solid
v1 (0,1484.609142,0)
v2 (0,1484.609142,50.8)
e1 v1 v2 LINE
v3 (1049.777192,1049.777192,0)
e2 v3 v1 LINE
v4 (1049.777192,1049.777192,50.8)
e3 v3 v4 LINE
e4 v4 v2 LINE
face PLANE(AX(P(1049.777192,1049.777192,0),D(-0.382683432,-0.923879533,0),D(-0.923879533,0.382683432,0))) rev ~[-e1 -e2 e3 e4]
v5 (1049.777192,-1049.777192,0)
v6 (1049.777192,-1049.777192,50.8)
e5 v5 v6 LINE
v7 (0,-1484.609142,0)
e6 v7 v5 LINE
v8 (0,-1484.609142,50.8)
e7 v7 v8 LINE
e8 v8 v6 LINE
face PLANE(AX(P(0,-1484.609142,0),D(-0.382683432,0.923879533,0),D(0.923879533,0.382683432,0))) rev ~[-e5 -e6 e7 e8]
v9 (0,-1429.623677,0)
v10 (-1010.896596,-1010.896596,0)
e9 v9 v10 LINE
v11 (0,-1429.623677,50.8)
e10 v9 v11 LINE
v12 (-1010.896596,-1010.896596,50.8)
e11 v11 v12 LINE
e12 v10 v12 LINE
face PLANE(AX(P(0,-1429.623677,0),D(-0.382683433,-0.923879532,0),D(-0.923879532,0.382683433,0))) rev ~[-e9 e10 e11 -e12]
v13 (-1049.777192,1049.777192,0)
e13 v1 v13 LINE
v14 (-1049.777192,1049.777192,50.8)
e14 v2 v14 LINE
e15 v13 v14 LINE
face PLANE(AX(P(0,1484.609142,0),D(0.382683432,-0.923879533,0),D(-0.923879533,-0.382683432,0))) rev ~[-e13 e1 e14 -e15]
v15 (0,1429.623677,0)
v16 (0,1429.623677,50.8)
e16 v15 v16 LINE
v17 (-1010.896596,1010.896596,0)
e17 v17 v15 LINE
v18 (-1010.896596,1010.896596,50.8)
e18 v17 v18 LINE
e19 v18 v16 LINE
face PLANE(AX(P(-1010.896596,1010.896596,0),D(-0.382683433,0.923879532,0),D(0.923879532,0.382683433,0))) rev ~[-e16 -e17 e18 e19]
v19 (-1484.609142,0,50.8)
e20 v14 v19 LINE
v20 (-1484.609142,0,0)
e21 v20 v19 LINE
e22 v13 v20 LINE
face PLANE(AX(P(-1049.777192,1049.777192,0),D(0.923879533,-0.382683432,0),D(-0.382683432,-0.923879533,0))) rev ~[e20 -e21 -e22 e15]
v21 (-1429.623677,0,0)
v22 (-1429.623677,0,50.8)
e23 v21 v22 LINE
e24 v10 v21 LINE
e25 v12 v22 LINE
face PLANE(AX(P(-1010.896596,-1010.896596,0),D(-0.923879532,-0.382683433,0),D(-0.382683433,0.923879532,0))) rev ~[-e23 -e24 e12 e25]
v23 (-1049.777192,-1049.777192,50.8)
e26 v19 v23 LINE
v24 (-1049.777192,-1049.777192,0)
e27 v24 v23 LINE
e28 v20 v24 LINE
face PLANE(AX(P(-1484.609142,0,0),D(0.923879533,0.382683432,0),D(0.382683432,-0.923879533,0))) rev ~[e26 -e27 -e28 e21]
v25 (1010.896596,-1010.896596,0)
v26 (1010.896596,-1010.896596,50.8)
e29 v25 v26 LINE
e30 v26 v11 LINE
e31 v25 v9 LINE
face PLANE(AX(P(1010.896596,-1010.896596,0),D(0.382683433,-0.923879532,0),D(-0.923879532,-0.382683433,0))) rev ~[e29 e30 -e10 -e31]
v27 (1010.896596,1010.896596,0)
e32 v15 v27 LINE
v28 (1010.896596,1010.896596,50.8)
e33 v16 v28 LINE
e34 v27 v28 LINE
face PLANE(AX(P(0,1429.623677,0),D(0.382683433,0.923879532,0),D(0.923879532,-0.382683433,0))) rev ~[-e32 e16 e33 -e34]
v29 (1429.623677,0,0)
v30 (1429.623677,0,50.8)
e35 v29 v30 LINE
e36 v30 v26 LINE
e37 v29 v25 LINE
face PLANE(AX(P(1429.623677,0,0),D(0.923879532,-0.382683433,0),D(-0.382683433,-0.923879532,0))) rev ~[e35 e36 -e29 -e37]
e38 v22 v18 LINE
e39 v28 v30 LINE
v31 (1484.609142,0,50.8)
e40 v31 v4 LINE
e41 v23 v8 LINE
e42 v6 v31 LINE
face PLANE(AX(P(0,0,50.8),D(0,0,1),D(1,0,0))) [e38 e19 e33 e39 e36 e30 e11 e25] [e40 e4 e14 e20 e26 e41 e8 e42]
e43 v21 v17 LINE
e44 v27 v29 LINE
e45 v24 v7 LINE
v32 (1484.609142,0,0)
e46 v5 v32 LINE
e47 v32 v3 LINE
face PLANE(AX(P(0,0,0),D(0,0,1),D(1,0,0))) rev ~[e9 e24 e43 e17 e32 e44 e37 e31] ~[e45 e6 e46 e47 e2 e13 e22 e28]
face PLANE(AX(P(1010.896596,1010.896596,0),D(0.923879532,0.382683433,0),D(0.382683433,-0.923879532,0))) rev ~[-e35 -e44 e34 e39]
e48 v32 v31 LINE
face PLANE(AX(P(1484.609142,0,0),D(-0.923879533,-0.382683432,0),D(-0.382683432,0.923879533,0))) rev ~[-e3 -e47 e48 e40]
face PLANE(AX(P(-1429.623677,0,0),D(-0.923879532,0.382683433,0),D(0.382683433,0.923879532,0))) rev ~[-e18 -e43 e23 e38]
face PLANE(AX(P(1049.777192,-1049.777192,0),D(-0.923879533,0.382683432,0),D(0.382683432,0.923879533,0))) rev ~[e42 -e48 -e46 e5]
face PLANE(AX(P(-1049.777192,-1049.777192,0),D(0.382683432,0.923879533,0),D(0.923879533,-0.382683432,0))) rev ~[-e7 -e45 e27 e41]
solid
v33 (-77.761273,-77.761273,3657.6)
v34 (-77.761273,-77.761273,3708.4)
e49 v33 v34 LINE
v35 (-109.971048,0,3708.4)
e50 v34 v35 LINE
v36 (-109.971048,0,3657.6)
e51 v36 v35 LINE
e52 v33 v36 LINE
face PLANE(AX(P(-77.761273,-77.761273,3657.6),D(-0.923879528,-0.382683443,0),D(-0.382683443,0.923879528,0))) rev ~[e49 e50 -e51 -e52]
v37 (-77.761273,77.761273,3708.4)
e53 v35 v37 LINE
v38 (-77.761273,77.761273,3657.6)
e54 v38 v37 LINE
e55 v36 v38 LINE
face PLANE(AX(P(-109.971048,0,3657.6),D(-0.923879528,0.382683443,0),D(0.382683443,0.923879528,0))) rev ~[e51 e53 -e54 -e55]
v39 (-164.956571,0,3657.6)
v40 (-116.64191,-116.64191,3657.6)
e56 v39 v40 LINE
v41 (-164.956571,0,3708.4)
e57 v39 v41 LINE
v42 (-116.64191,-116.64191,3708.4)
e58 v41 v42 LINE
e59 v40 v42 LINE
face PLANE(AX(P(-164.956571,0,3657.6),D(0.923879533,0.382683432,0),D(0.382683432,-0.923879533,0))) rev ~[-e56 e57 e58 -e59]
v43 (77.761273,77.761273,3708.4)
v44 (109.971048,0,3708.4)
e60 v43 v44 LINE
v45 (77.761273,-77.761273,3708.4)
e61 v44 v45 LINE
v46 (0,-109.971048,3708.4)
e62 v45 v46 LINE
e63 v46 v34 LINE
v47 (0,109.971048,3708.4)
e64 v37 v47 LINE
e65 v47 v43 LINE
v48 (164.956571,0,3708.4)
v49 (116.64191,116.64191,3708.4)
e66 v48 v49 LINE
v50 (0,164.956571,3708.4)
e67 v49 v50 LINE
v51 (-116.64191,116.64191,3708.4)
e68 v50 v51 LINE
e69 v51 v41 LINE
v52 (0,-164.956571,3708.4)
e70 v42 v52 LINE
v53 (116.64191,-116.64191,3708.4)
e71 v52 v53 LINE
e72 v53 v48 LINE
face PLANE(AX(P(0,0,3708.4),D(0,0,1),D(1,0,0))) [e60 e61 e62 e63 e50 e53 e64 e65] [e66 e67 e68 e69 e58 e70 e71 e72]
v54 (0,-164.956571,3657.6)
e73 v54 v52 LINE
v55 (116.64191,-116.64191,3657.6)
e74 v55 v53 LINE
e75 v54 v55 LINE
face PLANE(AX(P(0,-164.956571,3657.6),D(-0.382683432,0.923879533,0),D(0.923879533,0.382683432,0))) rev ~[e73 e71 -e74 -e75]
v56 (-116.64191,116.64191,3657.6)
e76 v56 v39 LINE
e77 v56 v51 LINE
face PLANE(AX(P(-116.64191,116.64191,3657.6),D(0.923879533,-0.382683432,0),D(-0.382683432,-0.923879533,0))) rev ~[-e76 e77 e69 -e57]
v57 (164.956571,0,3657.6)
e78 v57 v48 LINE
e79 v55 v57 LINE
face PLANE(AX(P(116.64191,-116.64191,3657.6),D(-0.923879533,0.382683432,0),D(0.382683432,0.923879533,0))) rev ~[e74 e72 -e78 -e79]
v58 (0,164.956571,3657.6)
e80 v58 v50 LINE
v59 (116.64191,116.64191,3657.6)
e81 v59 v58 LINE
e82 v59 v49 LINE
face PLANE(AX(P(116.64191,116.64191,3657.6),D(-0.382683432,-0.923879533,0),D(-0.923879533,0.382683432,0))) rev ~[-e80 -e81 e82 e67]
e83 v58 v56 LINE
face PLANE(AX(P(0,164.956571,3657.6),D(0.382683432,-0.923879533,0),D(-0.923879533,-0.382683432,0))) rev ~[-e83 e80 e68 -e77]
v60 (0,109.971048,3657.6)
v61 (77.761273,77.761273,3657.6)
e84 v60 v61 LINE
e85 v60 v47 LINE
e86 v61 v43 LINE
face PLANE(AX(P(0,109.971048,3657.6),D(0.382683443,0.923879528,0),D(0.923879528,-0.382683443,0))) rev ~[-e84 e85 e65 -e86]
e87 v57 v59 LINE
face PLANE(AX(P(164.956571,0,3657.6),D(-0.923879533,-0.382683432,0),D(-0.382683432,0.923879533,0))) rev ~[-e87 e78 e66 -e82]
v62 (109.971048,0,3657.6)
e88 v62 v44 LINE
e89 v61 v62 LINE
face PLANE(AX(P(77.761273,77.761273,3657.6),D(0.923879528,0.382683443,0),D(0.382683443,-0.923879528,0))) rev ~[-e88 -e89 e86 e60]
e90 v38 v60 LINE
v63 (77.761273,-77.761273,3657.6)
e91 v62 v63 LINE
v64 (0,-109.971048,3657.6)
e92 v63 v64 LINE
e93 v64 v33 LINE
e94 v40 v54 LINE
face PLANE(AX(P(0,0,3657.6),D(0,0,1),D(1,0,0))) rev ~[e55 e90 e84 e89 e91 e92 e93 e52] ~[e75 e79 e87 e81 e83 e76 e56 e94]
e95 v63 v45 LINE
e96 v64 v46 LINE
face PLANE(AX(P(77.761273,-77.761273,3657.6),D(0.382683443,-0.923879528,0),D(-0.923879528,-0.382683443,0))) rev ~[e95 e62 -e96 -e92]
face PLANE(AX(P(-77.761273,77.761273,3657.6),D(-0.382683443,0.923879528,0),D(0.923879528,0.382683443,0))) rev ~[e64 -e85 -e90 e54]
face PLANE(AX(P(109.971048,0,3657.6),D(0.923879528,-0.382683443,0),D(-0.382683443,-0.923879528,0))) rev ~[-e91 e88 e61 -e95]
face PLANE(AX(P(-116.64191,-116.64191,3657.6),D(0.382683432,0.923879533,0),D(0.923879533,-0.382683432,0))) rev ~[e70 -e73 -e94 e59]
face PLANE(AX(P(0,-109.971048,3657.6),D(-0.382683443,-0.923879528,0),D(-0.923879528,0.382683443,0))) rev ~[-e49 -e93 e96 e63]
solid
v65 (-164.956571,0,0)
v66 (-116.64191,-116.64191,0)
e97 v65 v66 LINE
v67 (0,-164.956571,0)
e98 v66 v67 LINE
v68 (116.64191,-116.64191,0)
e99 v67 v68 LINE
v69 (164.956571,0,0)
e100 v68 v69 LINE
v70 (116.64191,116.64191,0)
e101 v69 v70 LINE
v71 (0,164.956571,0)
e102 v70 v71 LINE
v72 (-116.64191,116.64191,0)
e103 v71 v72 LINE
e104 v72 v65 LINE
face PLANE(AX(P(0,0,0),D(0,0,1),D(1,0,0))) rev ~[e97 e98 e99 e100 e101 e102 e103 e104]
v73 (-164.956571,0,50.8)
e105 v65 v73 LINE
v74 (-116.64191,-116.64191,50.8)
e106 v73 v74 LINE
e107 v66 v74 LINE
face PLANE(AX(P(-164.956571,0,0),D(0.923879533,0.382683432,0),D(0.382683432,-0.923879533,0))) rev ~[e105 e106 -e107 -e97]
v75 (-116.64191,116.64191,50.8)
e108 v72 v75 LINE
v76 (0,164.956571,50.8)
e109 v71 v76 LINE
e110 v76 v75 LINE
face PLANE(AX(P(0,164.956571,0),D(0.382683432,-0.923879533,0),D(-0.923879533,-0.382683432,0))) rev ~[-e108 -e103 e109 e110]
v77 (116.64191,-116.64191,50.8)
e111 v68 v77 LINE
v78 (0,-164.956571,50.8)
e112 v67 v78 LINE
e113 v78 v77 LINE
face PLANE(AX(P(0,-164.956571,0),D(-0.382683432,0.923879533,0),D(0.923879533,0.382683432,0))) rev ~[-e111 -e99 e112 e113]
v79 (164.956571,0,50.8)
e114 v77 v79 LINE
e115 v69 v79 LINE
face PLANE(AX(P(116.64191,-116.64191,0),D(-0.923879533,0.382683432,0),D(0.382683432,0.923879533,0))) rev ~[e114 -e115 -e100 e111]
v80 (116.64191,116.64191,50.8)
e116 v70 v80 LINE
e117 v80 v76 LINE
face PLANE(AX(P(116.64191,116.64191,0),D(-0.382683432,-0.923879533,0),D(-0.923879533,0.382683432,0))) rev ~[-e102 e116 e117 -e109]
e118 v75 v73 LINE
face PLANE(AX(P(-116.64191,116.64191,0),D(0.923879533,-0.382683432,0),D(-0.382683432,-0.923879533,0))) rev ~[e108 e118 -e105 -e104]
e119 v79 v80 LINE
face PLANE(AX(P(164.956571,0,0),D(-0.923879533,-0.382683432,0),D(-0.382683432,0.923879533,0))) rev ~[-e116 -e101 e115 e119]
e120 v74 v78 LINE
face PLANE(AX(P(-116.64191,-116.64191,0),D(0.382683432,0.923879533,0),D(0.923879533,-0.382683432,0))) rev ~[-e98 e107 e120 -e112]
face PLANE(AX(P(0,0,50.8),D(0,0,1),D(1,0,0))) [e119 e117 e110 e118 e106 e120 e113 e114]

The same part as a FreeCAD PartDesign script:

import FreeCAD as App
import Part
import Sketcher

V = App.Vector
Q = App.Units.Quantity


def add_polygon(sketch, points):
    """Adds a closed chain of lines whose ends are joined by coincident constraints."""
    first, n = sketch.GeometryCount, len(points)
    for a, b in zip(points, points[1:] + points[:1]):
        sketch.addGeometry(Part.LineSegment(App.Vector(*a, 0), App.Vector(*b, 0)), False)
    for i in range(n):
        sketch.addConstraint(Sketcher.Constraint("Coincident", first + i, 2, first + (i + 1) % n, 1))

doc = App.newDocument("Part")
body = doc.addObject("PartDesign::Body", "Body")

sketch1 = body.newObject("Sketcher::SketchObject", "Sketch")
sketch1.AttachmentSupport = (doc.getObject("XY_Plane"), [""])
sketch1.MapMode = "FlatFace"
add_polygon(sketch1, [(1049.777192, -1049.777192), (1484.609142, 0), (1049.777192, 1049.777192), (0, 1484.609142), (-1049.777192, 1049.777192), (-1484.609142, 0), (-1049.777192, -1049.777192), (0, -1484.609142)])
add_polygon(sketch1, [(0, -1429.623677), (-1010.896596, -1010.896596), (-1429.623677, 0), (-1010.896596, 1010.896596), (0, 1429.623677), (1010.896596, 1010.896596), (1429.623677, 0), (1010.896596, -1010.896596)])
sketch1.addConstraint([
    Sketcher.Constraint("Symmetric", 0, 2, 4, 2, -1, 1),
    Sketcher.Constraint("Symmetric", 1, 2, 5, 2, -1, 1),
    Sketcher.Constraint("Symmetric", 2, 2, 6, 2, -1, 1),
    Sketcher.Constraint("Symmetric", 3, 2, 7, 2, -1, 1),
    Sketcher.Constraint("Symmetric", 8, 2, 12, 2, -1, 1),
    Sketcher.Constraint("Symmetric", 9, 2, 13, 2, -1, 1),
    Sketcher.Constraint("Symmetric", 10, 2, 14, 2, -1, 1),
    Sketcher.Constraint("Symmetric", 11, 2, 15, 2, -1, 1),
    Sketcher.Constraint("Symmetric", 1, 2, 3, 2, -2),
    Sketcher.Constraint("Symmetric", 10, 2, 12, 2, -2),
    Sketcher.Constraint("PointOnObject", 0, 2, -1),
    Sketcher.Constraint("PointOnObject", 2, 2, -2),
    Sketcher.Constraint("PointOnObject", 9, 2, -1),
    Sketcher.Constraint("PointOnObject", 11, 2, -2),
    Sketcher.Constraint("Perpendicular", 0, 2),
    Sketcher.Constraint("Parallel", 6, 8),
    Sketcher.Constraint("Perpendicular", 7, 9),
    Sketcher.Constraint("Equal", 1, 2),
    Sketcher.Constraint("Equal", 8, 9),
    Sketcher.Constraint("Angle", 0, Q("67.5 deg")),
    Sketcher.Constraint("Distance", 8, Q("1094.186591 mm")),
    Sketcher.Constraint("DistanceX", -1, 1, 0, 2, Q("1484.609142 mm")),
])
pad1 = body.newObject("PartDesign::Pad", "Pad")
pad1.Profile = sketch1
pad1.Length = Q("2 in")
body2 = doc.addObject("PartDesign::Body", "Body001")

sketch2 = body2.newObject("Sketcher::SketchObject", "Sketch001")
sketch2.AttachmentSupport = (doc.getObject("XY_Plane001"), [""])
sketch2.MapMode = "FlatFace"
sketch2.AttachmentOffset = App.Placement(V(0, 0, 144 * 25.4), App.Rotation())
add_polygon(sketch2, [(116.64191, -116.64191), (164.956571, 0), (116.64191, 116.64191), (0, 164.956571), (-116.64191, 116.64191), (-164.956571, 0), (-116.64191, -116.64191), (0, -164.956571)])
add_polygon(sketch2, [(0, -109.971048), (-77.761273, -77.761273), (-109.971048, 0), (-77.761273, 77.761273), (0, 109.971048), (77.761273, 77.761273), (109.971048, 0), (77.761273, -77.761273)])
sketch2.addConstraint([
    Sketcher.Constraint("Symmetric", 0, 2, 4, 2, -1, 1),
    Sketcher.Constraint("Symmetric", 1, 2, 5, 2, -1, 1),
    Sketcher.Constraint("Symmetric", 2, 2, 6, 2, -1, 1),
    Sketcher.Constraint("Symmetric", 3, 2, 7, 2, -1, 1),
    Sketcher.Constraint("Symmetric", 8, 2, 12, 2, -1, 1),
    Sketcher.Constraint("Symmetric", 9, 2, 13, 2, -1, 1),
    Sketcher.Constraint("Symmetric", 10, 2, 14, 2, -1, 1),
    Sketcher.Constraint("Symmetric", 11, 2, 15, 2, -1, 1),
    Sketcher.Constraint("Symmetric", 1, 2, 3, 2, -2),
    Sketcher.Constraint("Symmetric", 10, 2, 12, 2, -2),
    Sketcher.Constraint("PointOnObject", 0, 2, -1),
    Sketcher.Constraint("PointOnObject", 2, 2, -2),
    Sketcher.Constraint("PointOnObject", 9, 2, -1),
    Sketcher.Constraint("PointOnObject", 11, 2, -2),
    Sketcher.Constraint("Perpendicular", 0, 2),
    Sketcher.Constraint("Parallel", 6, 8),
    Sketcher.Constraint("Perpendicular", 7, 9),
    Sketcher.Constraint("Equal", 1, 2),
    Sketcher.Constraint("Equal", 8, 9),
    Sketcher.Constraint("Angle", 0, Q("67.5 deg")),
    Sketcher.Constraint("DistanceX", -1, 1, 0, 2, Q("164.956571 mm")),
    Sketcher.Constraint("DistanceX", 3, 2, 9, 2, Q("6.670862 mm")),
])
pad2 = body2.newObject("PartDesign::Pad", "Pad001")
pad2.Profile = sketch2
pad2.Length = Q("2 in")
body3 = doc.addObject("PartDesign::Body", "Body002")

sketch3 = body3.newObject("Sketcher::SketchObject", "Sketch002")
sketch3.AttachmentSupport = (doc.getObject("XY_Plane002"), [""])
sketch3.MapMode = "FlatFace"
add_polygon(sketch3, [(116.64191, -116.64191), (164.956571, 0), (116.64191, 116.64191), (0, 164.956571), (-116.64191, 116.64191), (-164.956571, 0), (-116.64191, -116.64191), (0, -164.956571)])
sketch3.addConstraint([
    Sketcher.Constraint("Symmetric", 0, 2, 4, 2, -1, 1),
    Sketcher.Constraint("Symmetric", 1, 2, 5, 2, -1, 1),
    Sketcher.Constraint("Symmetric", 2, 2, 6, 2, -1, 1),
    Sketcher.Constraint("Symmetric", 3, 2, 7, 2, -1, 1),
    Sketcher.Constraint("Symmetric", 1, 2, 3, 2, -2),
    Sketcher.Constraint("PointOnObject", 0, 2, -1),
    Sketcher.Constraint("PointOnObject", 2, 2, -2),
    Sketcher.Constraint("Perpendicular", 0, 2),
    Sketcher.Constraint("Equal", 1, 2),
    Sketcher.Constraint("Angle", 0, Q("67.5 deg")),
    Sketcher.Constraint("DistanceX", -1, 1, 0, 2, Q("164.956571 mm")),
])
pad3 = body3.newObject("PartDesign::Pad", "Pad002")
pad3.Profile = sketch3
pad3.Length = Q("2 in")

doc.recompute()
